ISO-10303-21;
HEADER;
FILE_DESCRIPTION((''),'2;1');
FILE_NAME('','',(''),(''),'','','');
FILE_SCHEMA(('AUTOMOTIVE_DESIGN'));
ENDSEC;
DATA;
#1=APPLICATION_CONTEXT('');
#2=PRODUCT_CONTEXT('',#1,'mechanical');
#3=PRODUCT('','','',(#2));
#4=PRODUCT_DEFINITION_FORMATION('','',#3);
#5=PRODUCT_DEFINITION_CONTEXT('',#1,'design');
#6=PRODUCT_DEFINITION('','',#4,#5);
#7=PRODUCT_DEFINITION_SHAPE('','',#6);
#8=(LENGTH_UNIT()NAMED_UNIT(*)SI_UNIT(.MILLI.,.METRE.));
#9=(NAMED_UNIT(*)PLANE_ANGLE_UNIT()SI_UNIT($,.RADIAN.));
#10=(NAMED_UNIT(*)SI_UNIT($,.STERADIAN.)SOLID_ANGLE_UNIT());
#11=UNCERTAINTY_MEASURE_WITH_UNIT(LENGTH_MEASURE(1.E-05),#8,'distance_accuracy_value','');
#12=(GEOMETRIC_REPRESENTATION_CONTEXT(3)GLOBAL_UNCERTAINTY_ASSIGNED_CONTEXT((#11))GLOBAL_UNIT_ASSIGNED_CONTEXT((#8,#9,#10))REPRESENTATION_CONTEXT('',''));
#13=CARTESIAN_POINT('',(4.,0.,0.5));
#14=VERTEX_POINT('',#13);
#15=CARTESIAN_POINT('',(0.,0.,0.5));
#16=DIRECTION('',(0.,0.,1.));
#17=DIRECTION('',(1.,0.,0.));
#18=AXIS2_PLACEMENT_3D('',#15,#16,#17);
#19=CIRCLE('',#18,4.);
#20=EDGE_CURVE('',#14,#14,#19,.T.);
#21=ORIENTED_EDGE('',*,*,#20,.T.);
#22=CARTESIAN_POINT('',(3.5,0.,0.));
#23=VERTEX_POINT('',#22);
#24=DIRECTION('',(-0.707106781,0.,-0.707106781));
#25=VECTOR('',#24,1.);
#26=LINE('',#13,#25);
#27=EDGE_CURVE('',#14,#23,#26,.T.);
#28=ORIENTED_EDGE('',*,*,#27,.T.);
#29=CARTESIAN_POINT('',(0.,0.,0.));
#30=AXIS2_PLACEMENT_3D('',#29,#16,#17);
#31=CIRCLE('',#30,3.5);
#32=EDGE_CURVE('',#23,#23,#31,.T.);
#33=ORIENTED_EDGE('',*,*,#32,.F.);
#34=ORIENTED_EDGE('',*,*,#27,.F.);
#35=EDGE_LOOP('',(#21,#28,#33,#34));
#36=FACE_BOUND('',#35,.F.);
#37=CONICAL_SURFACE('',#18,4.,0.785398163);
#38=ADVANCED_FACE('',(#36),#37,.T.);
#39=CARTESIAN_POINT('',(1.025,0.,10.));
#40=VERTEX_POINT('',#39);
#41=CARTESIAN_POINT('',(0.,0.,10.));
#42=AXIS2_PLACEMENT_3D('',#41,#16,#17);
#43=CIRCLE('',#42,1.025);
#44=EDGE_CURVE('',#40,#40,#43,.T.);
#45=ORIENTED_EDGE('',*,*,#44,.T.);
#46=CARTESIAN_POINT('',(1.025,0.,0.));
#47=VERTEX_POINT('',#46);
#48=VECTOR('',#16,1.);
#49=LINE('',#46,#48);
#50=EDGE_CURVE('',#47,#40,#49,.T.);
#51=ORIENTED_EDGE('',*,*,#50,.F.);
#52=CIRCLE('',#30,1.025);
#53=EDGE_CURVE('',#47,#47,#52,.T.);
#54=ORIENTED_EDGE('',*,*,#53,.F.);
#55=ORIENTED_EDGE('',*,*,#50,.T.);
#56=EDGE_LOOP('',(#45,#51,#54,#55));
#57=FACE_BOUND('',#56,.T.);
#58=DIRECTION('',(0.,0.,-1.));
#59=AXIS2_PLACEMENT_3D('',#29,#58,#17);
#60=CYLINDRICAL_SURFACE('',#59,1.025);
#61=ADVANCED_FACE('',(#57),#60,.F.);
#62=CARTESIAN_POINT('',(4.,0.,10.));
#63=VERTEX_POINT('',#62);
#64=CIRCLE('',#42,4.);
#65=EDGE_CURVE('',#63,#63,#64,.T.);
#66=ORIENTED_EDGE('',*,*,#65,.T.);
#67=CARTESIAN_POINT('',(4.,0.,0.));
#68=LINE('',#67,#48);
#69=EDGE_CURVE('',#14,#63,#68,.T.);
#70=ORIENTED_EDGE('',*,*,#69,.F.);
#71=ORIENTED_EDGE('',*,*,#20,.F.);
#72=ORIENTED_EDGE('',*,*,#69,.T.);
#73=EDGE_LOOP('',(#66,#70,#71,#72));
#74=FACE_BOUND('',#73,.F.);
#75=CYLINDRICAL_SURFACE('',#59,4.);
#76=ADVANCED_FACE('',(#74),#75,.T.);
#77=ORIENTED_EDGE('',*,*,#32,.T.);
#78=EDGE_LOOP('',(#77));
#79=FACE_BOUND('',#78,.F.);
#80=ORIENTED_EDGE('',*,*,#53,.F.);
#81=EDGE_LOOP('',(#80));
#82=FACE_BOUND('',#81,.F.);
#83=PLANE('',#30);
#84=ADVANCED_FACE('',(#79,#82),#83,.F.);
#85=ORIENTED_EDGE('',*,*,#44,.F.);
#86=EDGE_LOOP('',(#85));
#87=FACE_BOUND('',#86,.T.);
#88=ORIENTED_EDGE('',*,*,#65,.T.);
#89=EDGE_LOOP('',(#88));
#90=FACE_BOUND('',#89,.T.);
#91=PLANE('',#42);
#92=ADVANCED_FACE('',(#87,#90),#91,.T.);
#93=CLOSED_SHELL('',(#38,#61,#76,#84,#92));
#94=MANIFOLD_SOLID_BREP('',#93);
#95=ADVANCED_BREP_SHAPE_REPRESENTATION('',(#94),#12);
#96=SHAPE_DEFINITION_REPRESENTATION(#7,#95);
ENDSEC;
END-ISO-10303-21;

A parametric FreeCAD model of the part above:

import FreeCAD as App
import Part
import Sketcher
from FreeCAD import Vector


def edges_at(feature, points):
    """Names of the edges that pass closest to the given points."""
    edges = feature.Shape.Edges
    near = lambda p: min(range(len(edges)), key=lambda i: edges[i].distToShape(Part.Vertex(*p))[0])
    return sorted({f"Edge{near(p) + 1}" for p in points})

doc = App.newDocument("Part")
body = doc.addObject("PartDesign::Body", "Body")

# Sketch on XY plane
sketch1 = body.newObject("Sketcher::SketchObject", "Sketch")
sketch1.AttachmentSupport = (doc.getObject("XY_Plane"), [""])
sketch1.MapMode = "FlatFace"
sketch1.addGeometry([
    Part.Circle(Vector(0, 0, 0), Vector(0, 0, 1), 4),
    Part.Circle(Vector(0, 0, 0), Vector(0, 0, 1), 1.025),
], False)
sketch1.addConstraint([
    Sketcher.Constraint("Coincident", 0, 3, -1, 1),
    Sketcher.Constraint("Coincident", 1, 3, -1, 1),
    Sketcher.Constraint("Diameter", 0, 8.0),
    Sketcher.Constraint("Diameter", 1, 2.05),
])
pad1 = body.newObject("PartDesign::Pad", "Pad")
pad1.Profile = sketch1
pad1.Length = 10
doc.recompute()

chamfer = body.newObject("PartDesign::Chamfer", "Chamfer")
chamfer.Base = (pad1, edges_at(pad1, [(-4, 0, 0)]))
chamfer.Size = 0.5

doc.recompute()
